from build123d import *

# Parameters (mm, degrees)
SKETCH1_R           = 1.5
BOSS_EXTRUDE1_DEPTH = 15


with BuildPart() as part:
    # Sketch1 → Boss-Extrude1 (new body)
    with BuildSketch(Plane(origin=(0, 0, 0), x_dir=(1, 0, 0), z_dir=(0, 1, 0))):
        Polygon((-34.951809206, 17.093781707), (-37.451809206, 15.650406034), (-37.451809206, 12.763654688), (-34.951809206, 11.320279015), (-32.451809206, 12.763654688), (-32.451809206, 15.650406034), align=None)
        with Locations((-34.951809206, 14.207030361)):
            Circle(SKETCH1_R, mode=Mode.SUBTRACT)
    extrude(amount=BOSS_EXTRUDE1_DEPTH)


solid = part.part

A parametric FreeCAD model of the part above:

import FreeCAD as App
import Part
import Sketcher
Q = App.Units.Quantity

doc = App.newDocument("Part")
body = doc.addObject("PartDesign::Body", "Body")

# Sketch on XZ plane
sketch1 = body.newObject("Sketcher::SketchObject", "Sketch")
sketch1.AttachmentSupport = (doc.getObject("XZ_Plane"), [""])
sketch1.MapMode = "FlatFace"
sketch1.addGeometry([
    Part.LineSegment(App.Vector(-35, -17.1, 0), App.Vector(-37.5, -15.7, 0)),  # 0
    Part.LineSegment(App.Vector(-37.5, -15.7, 0), App.Vector(-37.5, -12.8, 0)),  # 1
    Part.LineSegment(App.Vector(-37.5, -12.8, 0), App.Vector(-35, -11.3, 0)),  # 2
    Part.LineSegment(App.Vector(-35, -11.3, 0), App.Vector(-32.5, -12.8, 0)),  # 3
    Part.LineSegment(App.Vector(-32.5, -12.8, 0), App.Vector(-32.5, -15.7, 0)),  # 4
    Part.LineSegment(App.Vector(-32.5, -15.7, 0), App.Vector(-35, -17.1, 0)),  # 5
    Part.Circle(App.Vector(-35, -14.2, 0), App.Vector(0, 0, 1), 1.5),  # 6
], False)
sketch1.addConstraint([
    Sketcher.Constraint("Coincident", 0, 2, 1, 1),
    Sketcher.Constraint("Coincident", 1, 2, 2, 1),
    Sketcher.Constraint("Coincident", 2, 2, 3, 1),
    Sketcher.Constraint("Coincident", 3, 2, 4, 1),
    Sketcher.Constraint("Coincident", 4, 2, 5, 1),
    Sketcher.Constraint("Coincident", 5, 2, 0, 1),
    Sketcher.Constraint("Vertical", 1),
    Sketcher.Constraint("Vertical", 4),
    Sketcher.Constraint("Parallel", 0, 3),
    Sketcher.Constraint("Parallel", 2, 5),
    Sketcher.Constraint("Horizontal", 1, 2, 3, 2),
    Sketcher.Constraint("Horizontal", 0, 2, 4, 2),
    Sketcher.Constraint("Vertical", 6, 3, 2, 2),
    Sketcher.Constraint("Vertical", 2, 2, 5, 2),
    Sketcher.Constraint("Diameter", 6, 3.0),
    Sketcher.Constraint("Angle", 0, Q("150 deg")),
    Sketcher.Constraint("DistanceX", 1, 2, 3, 2, 5.0),
    Sketcher.Constraint("DistanceY", 1, 1, 1, 2, 2.886751),
    Sketcher.Constraint("DistanceX", 6, 3, -1, 1, 34.951809),
    Sketcher.Constraint("DistanceY", 6, 3, -1, 1, 14.20703),
    Sketcher.Constraint("DistanceY", 2, 2, -1, 1, 11.320279),
])
pad1 = body.newObject("PartDesign::Pad", "Pad")
pad1.Profile = sketch1
pad1.Length = 15
pad1.Reversed = True

doc.recompute()
